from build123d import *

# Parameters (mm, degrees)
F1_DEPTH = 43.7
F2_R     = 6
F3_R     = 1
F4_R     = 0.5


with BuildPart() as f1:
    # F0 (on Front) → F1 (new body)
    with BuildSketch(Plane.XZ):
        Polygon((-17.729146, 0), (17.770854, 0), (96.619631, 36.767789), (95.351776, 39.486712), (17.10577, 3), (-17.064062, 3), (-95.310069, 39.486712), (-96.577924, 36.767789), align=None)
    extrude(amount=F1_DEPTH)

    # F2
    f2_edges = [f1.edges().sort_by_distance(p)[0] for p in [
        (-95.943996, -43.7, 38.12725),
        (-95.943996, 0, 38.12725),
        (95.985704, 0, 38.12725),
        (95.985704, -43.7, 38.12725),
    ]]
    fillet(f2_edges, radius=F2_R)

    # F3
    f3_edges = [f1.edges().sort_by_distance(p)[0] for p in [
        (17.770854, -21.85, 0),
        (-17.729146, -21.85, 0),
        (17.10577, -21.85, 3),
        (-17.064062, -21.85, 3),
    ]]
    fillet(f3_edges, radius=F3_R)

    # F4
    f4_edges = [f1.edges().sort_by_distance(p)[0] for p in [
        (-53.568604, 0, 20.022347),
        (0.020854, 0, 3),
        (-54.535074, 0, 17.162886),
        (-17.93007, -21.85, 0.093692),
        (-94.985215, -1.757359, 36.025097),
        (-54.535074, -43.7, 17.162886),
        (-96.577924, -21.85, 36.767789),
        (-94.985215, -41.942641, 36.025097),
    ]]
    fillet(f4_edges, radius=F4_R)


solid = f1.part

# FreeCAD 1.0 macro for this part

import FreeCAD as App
import Part
import Sketcher

V = App.Vector
Q = App.Units.Quantity


def edges_at(feature, points):
    """Names of the edges that pass closest to the given points."""
    edges = feature.Shape.Edges
    near = lambda p: min(range(len(edges)), key=lambda i: edges[i].distToShape(Part.Vertex(*p))[0])
    return sorted({f"Edge{near(p) + 1}" for p in points})

doc = App.newDocument("Part")
params = doc.addObject("Spreadsheet::Sheet", "Params")
for row, (alias, value) in enumerate([
    ("sketch1_length", "87 mm"),
    ("sketch1_length2", "3 mm"),
    ("sketch1_width", "35.5 mm"),
    ("pad1_length", "43.7 mm"),
    ("fillet_radius", "6 mm"),
    ("fillet2_radius", "1 mm"),
    ("fillet3_radius", "0.5 mm"),
], start=1):
    params.set(f"A{row}", alias)
    params.set(f"B{row}", "=" + value)
    params.setAlias(f"B{row}", alias)

body = doc.addObject("PartDesign::Body", "Body")

# Sketch on XZ plane
sketch1 = doc.addObject("Sketcher::SketchObject", "Sketch")
body.addObject(sketch1)
sketch1.AttachmentSupport = (doc.XZ_Plane, [""])
sketch1.MapMode = "FlatFace"
sketch1.addGeometry(Part.LineSegment(V(-17.729146, 0, 0), V(17.770854, 0, 0)), False)
sketch1.addGeometry(Part.LineSegment(V(17.770854, 0, 0), V(96.619631, 36.767789, 0)), False)
sketch1.addGeometry(Part.LineSegment(V(96.619631, 36.767789, 0), V(95.351776, 39.486712, 0)), False)
sketch1.addGeometry(Part.LineSegment(V(95.351776, 39.486712, 0), V(17.10577, 3, 0)), False)
sketch1.addGeometry(Part.LineSegment(V(17.10577, 3, 0), V(-17.064062, 3, 0)), False)
sketch1.addGeometry(Part.LineSegment(V(-17.064062, 3, 0), V(-95.310069, 39.486712, 0)), False)
sketch1.addGeometry(Part.LineSegment(V(-95.310069, 39.486712, 0), V(-96.577924, 36.767789, 0)), False)
sketch1.addGeometry(Part.LineSegment(V(-96.577924, 36.767789, 0), V(-17.729146, 0, 0)), False)
sketch1.addConstraint(Sketcher.Constraint("Coincident", 0, 2, 1, 1))
sketch1.addConstraint(Sketcher.Constraint("Coincident", 1, 2, 2, 1))
sketch1.addConstraint(Sketcher.Constraint("Coincident", 2, 2, 3, 1))
sketch1.addConstraint(Sketcher.Constraint("Coincident", 3, 2, 4, 1))
sketch1.addConstraint(Sketcher.Constraint("Coincident", 4, 2, 5, 1))
sketch1.addConstraint(Sketcher.Constraint("Coincident", 5, 2, 6, 1))
sketch1.addConstraint(Sketcher.Constraint("Coincident", 6, 2, 7, 1))
sketch1.addConstraint(Sketcher.Constraint("Coincident", 7, 2, 0, 1))
sketch1.addConstraint(Sketcher.Constraint("Horizontal", 0))
sketch1.addConstraint(Sketcher.Constraint("Horizontal", 4))
sketch1.addConstraint(Sketcher.Constraint("PointOnObject", 0, 2, -1))
sketch1.addConstraint(Sketcher.Constraint("Perpendicular", 1, 2))
sketch1.addConstraint(Sketcher.Constraint("Perpendicular", 2, 3))
sketch1.addConstraint(Sketcher.Constraint("Perpendicular", 5, 6))
sketch1.addConstraint(Sketcher.Constraint("Perpendicular", 6, 7))
sketch1.addConstraint(Sketcher.Constraint("Horizontal", 2, 2, 5, 2))
sketch1.addConstraint(Sketcher.Constraint("Horizontal", 1, 2, 6, 2))
sketch1.addConstraint(Sketcher.Constraint("Equal", 3, 5))
sketch1.addConstraint(Sketcher.Constraint("Angle", 1, Q("25 deg")))
sketch1.addConstraint(Sketcher.Constraint("Distance", 1, 87.0))
sketch1.addConstraint(Sketcher.Constraint("Distance", 2, 3.0))
sketch1.addConstraint(Sketcher.Constraint("DistanceX", 0, 1, 0, 2, 35.5))
sketch1.addConstraint(Sketcher.Constraint("DistanceY", -1, 1, 3, 2, 3.0))
sketch1.addConstraint(Sketcher.Constraint("DistanceX", -1, 1, 1, 2, 96.619631))
sketch1.setExpression("Constraints[19]", "Params.sketch1_length")
sketch1.setExpression("Constraints[20]", "Params.sketch1_length2")
sketch1.setExpression("Constraints[21]", "Params.sketch1_width")
pad1 = doc.addObject("PartDesign::Pad", "Pad")
body.addObject(pad1)
pad1.Profile = sketch1
pad1.setExpression("Length", "Params.pad1_length")
doc.recompute()

fillet = doc.addObject("PartDesign::Fillet", "Fillet")
body.addObject(fillet)
fillet.Base = (pad1, edges_at(pad1, [
    (-95.944, -43.7, 38.127),
    (-95.944, 0, 38.127),
    (95.986, 0, 38.127),
    (95.986, -43.7, 38.127),
]))
fillet.setExpression("Radius", "Params.fillet_radius")
doc.recompute()

fillet2 = doc.addObject("PartDesign::Fillet", "Fillet001")
body.addObject(fillet2)
fillet2.Base = (fillet, edges_at(fillet, [
    (17.771, -21.85, 0),
    (-17.729, -21.85, 0),
    (17.106, -21.85, 3),
    (-17.064, -21.85, 3),
]))
fillet2.setExpression("Radius", "Params.fillet2_radius")
doc.recompute()

fillet3 = doc.addObject("PartDesign::Fillet", "Fillet002")
body.addObject(fillet3)
fillet3.Base = (fillet2, edges_at(fillet2, [
    (-53.569, 0, 20.022),
    (0.021, 0, 3),
    (-54.535, 0, 17.163),
    (-17.93, -21.85, 0.094),
    (-94.985, -1.757, 36.025),
    (-54.535, -43.7, 17.163),
    (-96.578, -21.85, 36.768),
    (-94.985, -41.943, 36.025),
]))
fillet3.setExpression("Radius", "Params.fillet3_radius")

doc.recompute()
